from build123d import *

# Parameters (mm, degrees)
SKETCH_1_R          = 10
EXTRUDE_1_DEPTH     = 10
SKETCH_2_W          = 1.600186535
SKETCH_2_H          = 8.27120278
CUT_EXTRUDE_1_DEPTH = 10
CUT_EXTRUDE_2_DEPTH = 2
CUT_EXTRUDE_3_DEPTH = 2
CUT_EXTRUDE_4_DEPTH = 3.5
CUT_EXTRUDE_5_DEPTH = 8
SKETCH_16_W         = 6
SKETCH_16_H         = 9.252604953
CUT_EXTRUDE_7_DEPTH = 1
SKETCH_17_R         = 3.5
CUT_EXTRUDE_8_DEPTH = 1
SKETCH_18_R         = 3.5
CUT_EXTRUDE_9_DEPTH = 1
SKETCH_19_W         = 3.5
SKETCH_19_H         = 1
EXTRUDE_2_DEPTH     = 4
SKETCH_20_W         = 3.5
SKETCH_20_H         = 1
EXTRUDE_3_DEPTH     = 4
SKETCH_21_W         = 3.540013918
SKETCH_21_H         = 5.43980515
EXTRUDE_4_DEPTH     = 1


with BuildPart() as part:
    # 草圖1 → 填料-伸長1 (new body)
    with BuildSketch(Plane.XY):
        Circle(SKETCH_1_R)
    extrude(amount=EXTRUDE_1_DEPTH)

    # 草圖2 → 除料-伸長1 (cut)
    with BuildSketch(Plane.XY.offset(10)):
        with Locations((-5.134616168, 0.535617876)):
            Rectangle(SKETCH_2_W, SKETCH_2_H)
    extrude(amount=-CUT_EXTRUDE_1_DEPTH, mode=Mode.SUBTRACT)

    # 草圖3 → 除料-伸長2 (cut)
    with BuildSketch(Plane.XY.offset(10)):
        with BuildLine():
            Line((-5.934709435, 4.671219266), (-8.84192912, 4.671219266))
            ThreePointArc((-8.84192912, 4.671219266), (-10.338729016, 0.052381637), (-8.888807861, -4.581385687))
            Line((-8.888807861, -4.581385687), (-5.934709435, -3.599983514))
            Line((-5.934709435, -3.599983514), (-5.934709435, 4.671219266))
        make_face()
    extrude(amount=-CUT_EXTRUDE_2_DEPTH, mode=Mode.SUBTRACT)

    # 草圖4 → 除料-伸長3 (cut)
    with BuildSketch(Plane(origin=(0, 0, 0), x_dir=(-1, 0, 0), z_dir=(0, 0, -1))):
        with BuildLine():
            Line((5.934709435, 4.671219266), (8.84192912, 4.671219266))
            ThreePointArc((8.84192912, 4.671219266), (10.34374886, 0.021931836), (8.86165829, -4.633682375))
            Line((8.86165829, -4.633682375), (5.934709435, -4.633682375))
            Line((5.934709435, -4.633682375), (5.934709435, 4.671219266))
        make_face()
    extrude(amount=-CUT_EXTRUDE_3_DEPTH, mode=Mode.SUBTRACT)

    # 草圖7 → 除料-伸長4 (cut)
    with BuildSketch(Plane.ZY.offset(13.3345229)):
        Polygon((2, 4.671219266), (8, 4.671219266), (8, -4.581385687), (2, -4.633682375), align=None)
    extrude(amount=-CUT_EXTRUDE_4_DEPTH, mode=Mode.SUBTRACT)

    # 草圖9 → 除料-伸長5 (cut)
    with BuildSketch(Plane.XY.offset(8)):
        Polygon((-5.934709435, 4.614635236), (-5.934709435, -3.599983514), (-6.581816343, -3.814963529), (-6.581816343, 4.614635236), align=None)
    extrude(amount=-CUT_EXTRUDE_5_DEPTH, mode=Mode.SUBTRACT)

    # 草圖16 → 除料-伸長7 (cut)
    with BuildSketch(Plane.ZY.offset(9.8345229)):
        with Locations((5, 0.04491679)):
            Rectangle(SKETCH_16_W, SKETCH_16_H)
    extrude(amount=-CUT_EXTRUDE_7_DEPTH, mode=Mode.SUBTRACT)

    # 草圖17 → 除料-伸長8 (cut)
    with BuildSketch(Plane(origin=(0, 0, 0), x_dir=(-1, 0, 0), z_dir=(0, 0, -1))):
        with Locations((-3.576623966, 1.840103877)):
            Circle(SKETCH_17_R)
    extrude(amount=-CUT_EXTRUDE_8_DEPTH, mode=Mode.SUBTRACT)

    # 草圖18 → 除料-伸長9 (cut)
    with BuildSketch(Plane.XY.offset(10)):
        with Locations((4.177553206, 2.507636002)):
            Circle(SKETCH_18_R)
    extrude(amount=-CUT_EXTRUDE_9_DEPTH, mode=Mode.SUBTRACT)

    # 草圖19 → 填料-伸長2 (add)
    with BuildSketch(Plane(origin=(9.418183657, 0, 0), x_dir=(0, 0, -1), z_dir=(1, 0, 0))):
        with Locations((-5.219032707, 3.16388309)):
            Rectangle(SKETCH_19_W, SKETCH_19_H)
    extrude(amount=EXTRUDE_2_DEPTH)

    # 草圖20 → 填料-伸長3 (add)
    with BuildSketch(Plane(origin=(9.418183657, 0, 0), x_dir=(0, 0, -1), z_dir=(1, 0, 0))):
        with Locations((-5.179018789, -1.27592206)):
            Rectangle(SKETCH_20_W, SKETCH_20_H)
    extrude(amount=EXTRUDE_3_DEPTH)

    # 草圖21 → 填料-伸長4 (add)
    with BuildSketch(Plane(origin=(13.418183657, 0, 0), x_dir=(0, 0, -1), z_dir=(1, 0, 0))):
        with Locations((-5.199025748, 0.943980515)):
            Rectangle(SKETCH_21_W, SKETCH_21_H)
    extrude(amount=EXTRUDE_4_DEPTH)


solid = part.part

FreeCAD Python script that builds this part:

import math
import FreeCAD as App
import Part
import Sketcher
from FreeCAD import Vector

doc = App.newDocument("Part")
body = doc.addObject("PartDesign::Body", "Body")

# Sketch on XY plane
sketch1 = doc.addObject("Sketcher::SketchObject", "Sketch")
body.addObject(sketch1)
sketch1.AttachmentSupport = (doc.XY_Plane, [""])
sketch1.MapMode = "FlatFace"
sketch1.addGeometry(Part.Circle(Vector(0, 0, 0), Vector(0, 0, 1), 10), False)
sketch1.addConstraint([
    Sketcher.Constraint("Coincident", 0, 3, -1, 1),
    Sketcher.Constraint("Diameter", 0, 20.0),
])
pad1 = doc.addObject("PartDesign::Pad", "Pad")
body.addObject(pad1)
pad1.Profile = sketch1
pad1.Length = 10

# Sketch on XY plane
sketch2 = doc.addObject("Sketcher::SketchObject", "Sketch001")
body.addObject(sketch2)
sketch2.AttachmentSupport = (doc.XY_Plane, [""])
sketch2.MapMode = "FlatFace"
sketch2.AttachmentOffset = App.Placement(Vector(0, 0, 10), App.Rotation())
sketch2.addGeometry([
    Part.LineSegment(Vector(-5.9, 4.7, 0), Vector(-5.9, -3.6, 0)),
    Part.LineSegment(Vector(-5.9, -3.6, 0), Vector(-4.3, -3.6, 0)),
    Part.LineSegment(Vector(-4.3, -3.6, 0), Vector(-4.3, 4.7, 0)),
    Part.LineSegment(Vector(-4.3, 4.7, 0), Vector(-5.9, 4.7, 0)),
], False)
sketch2.addConstraint([
    Sketcher.Constraint("Coincident", 0, 2, 1, 1),
    Sketcher.Constraint("Coincident", 1, 2, 2, 1),
    Sketcher.Constraint("Coincident", 2, 2, 3, 1),
    Sketcher.Constraint("Coincident", 3, 2, 0, 1),
    Sketcher.Constraint("Vertical", 0),
    Sketcher.Constraint("Horizontal", 1),
    Sketcher.Constraint("Vertical", 2),
    Sketcher.Constraint("Horizontal", 3),
    Sketcher.Constraint("DistanceX", 1, 1, 1, 2, 1.600187),
    Sketcher.Constraint("DistanceY", 0, 2, 0, 1, 8.271203),
    Sketcher.Constraint("DistanceX", 0, 2, -1, 1, 5.934709),
    Sketcher.Constraint("DistanceY", -1, 1, 2, 2, 4.671219),
])
pocket1 = doc.addObject("PartDesign::Pocket", "Pocket")
body.addObject(pocket1)
pocket1.Profile = sketch2
pocket1.Length = 10

# Sketch on XY plane
sketch3 = doc.addObject("Sketcher::SketchObject", "Sketch002")
body.addObject(sketch3)
sketch3.AttachmentSupport = (doc.XY_Plane, [""])
sketch3.MapMode = "FlatFace"
sketch3.AttachmentOffset = App.Placement(Vector(0, 0, 10), App.Rotation())
sketch3.addGeometry([
    Part.LineSegment(Vector(-5.9, 4.7, 0), Vector(-8.8, 4.7, 0)),
    Part.ArcOfCircle(Part.Circle(Vector(-2.3, 0, 0), Vector(0, 0, 1), 8), math.radians(144), math.radians(215)),
    Part.LineSegment(Vector(-8.9, -4.6, 0), Vector(-5.9, -3.6, 0)),
    Part.LineSegment(Vector(-5.9, -3.6, 0), Vector(-5.9, 4.7, 0)),
], False)
sketch3.addConstraint([
    Sketcher.Constraint("Coincident", 0, 2, 1, 1),
    Sketcher.Constraint("Coincident", 1, 2, 2, 1),
    Sketcher.Constraint("Coincident", 2, 2, 3, 1),
    Sketcher.Constraint("Coincident", 3, 2, 0, 1),
    Sketcher.Constraint("Horizontal", 0),
    Sketcher.Constraint("Vertical", 3),
    Sketcher.Constraint("Radius", 1, 8.0),
    Sketcher.Constraint("DistanceX", 0, 2, 0, 1, 2.90722),
    Sketcher.Constraint("DistanceX", 1, 2, 2, 2, 2.954098),
    Sketcher.Constraint("DistanceY", 3, 1, 3, 2, 8.271203),
    Sketcher.Constraint("DistanceX", 1, 3, -1, 1, 2.338832),
    Sketcher.Constraint("DistanceY", -1, 1, 1, 3, 0.01185),
    Sketcher.Constraint("DistanceX", 0, 2, -1, 1, 8.841929),
])
pocket2 = doc.addObject("PartDesign::Pocket", "Pocket001")
body.addObject(pocket2)
pocket2.Profile = sketch3
pocket2.Length = 2

# Sketch on XY plane
sketch4 = doc.addObject("Sketcher::SketchObject", "Sketch003")
body.addObject(sketch4)
sketch4.AttachmentSupport = (doc.XY_Plane, [""])
sketch4.MapMode = "FlatFace"
sketch4.addGeometry([
    Part.LineSegment(Vector(-8.8, 4.7, 0), Vector(-5.9, 4.7, 0)),
    Part.LineSegment(Vector(-5.9, 4.7, 0), Vector(-5.9, -4.6, 0)),
    Part.LineSegment(Vector(-5.9, -4.6, 0), Vector(-8.9, -4.6, 0)),
    Part.ArcOfCircle(Part.Circle(Vector(-2.3, 0, 0), Vector(0, 0, 1), 8), math.radians(144), math.radians(215)),
], False)
sketch4.addConstraint([
    Sketcher.Constraint("Coincident", 0, 2, 1, 1),
    Sketcher.Constraint("Coincident", 1, 2, 2, 1),
    Sketcher.Constraint("Coincident", 2, 2, 3, 2),
    Sketcher.Constraint("Coincident", 3, 1, 0, 1),
    Sketcher.Constraint("Horizontal", 0),
    Sketcher.Constraint("Vertical", 1),
    Sketcher.Constraint("Horizontal", 2),
    Sketcher.Constraint("Radius", 3, 8.0),
    Sketcher.Constraint("DistanceY", 1, 2, 1, 1, 9.304902),
    Sketcher.Constraint("DistanceX", 0, 1, 0, 2, 2.90722),
    Sketcher.Constraint("DistanceX", 2, 2, 2, 1, 2.926949),
    Sketcher.Constraint("DistanceY", -1, 1, 3, 3, 0.004969),
    Sketcher.Constraint("DistanceX", 0, 2, -1, 1, 5.934709),
])
pocket3 = doc.addObject("PartDesign::Pocket", "Pocket002")
body.addObject(pocket3)
pocket3.Profile = sketch4
pocket3.Length = 2
pocket3.Reversed = True

# Sketch on YZ plane
sketch5 = doc.addObject("Sketcher::SketchObject", "Sketch004")
body.addObject(sketch5)
sketch5.AttachmentSupport = (doc.YZ_Plane, [""])
sketch5.MapMode = "FlatFace"
sketch5.AttachmentOffset = App.Placement(Vector(0, 0, -13.334523), App.Rotation())
sketch5.addGeometry([
    Part.LineSegment(Vector(5, 8, 0), Vector(5, 2, 0)),
    Part.LineSegment(Vector(5, 2, 0), Vector(-5, 2, 0)),
    Part.LineSegment(Vector(-5, 2, 0), Vector(-5, 8, 0)),
    Part.LineSegment(Vector(-5, 8, 0), Vector(5, 8, 0)),
], False)
sketch5.addConstraint([
    Sketcher.Constraint("Coincident", 0, 2, 1, 1),
    Sketcher.Constraint("Coincident", 1, 2, 2, 1),
    Sketcher.Constraint("Coincident", 2, 2, 3, 1),
    Sketcher.Constraint("Coincident", 3, 2, 0, 1),
    Sketcher.Constraint("Vertical", 0),
    Sketcher.Constraint("Horizontal", 1),
    Sketcher.Constraint("Horizontal", 3),
    Sketcher.Constraint("DistanceY", 0, 2, 0, 1, 6.0),
    Sketcher.Constraint("DistanceY", -1, 1, 0, 2, 2.0),
    Sketcher.Constraint("DistanceX", 1, 2, 1, 1, 9.304902),
    Sketcher.Constraint("DistanceX", 3, 1, 3, 2, 9.252605),
    Sketcher.Constraint("DistanceX", -1, 1, 0, 2, 4.671219),
])
pocket4 = doc.addObject("PartDesign::Pocket", "Pocket003")
body.addObject(pocket4)
pocket4.Profile = sketch5
pocket4.Length = 3.5
pocket4.Reversed = True

# Sketch on XY plane
sketch6 = doc.addObject("Sketcher::SketchObject", "Sketch005")
body.addObject(sketch6)
sketch6.AttachmentSupport = (doc.XY_Plane, [""])
sketch6.MapMode = "FlatFace"
sketch6.AttachmentOffset = App.Placement(Vector(0, 0, 8), App.Rotation())
sketch6.addGeometry([
    Part.LineSegment(Vector(-5.9, -3.6, 0), Vector(-5.9, 4.6, 0)),
    Part.LineSegment(Vector(-5.9, 4.6, 0), Vector(-6.6, 4.6, 0)),
    Part.LineSegment(Vector(-6.6, 4.6, 0), Vector(-6.6, -3.8, 0)),
    Part.LineSegment(Vector(-6.6, -3.8, 0), Vector(-5.9, -3.6, 0)),
], False)
sketch6.addConstraint([
    Sketcher.Constraint("Coincident", 0, 2, 1, 1),
    Sketcher.Constraint("Coincident", 1, 2, 2, 1),
    Sketcher.Constraint("Coincident", 2, 2, 3, 1),
    Sketcher.Constraint("Coincident", 3, 2, 0, 1),
    Sketcher.Constraint("Vertical", 0),
    Sketcher.Constraint("Horizontal", 1),
    Sketcher.Constraint("Vertical", 2),
    Sketcher.Constraint("DistanceY", 2, 2, 2, 1, 8.429599),
    Sketcher.Constraint("DistanceY", 0, 1, 0, 2, 8.214619),
    Sketcher.Constraint("DistanceX", 1, 2, 1, 1, 0.647107),
    Sketcher.Constraint("DistanceX", 0, 2, -1, 1, 5.934709),
    Sketcher.Constraint("DistanceY", -1, 1, 0, 2, 4.614635),
])
pocket5 = doc.addObject("PartDesign::Pocket", "Pocket004")
body.addObject(pocket5)
pocket5.Profile = sketch6
pocket5.Length = 8

# Sketch on YZ plane
sketch7 = doc.addObject("Sketcher::SketchObject", "Sketch006")
body.addObject(sketch7)
sketch7.AttachmentSupport = (doc.YZ_Plane, [""])
sketch7.MapMode = "FlatFace"
sketch7.AttachmentOffset = App.Placement(Vector(0, 0, -9.834523), App.Rotation())
sketch7.addGeometry([
    Part.LineSegment(Vector(5, 2, 0), Vector(-5, 2, 0)),
    Part.LineSegment(Vector(-5, 2, 0), Vector(-5, 8, 0)),
    Part.LineSegment(Vector(-5, 8, 0), Vector(5, 8, 0)),
    Part.LineSegment(Vector(5, 8, 0), Vector(5, 2, 0)),
], False)
sketch7.addConstraint([
    Sketcher.Constraint("Coincident", 0, 2, 1, 1),
    Sketcher.Constraint("Coincident", 1, 2, 2, 1),
    Sketcher.Constraint("Coincident", 2, 2, 3, 1),
    Sketcher.Constraint("Coincident", 3, 2, 0, 1),
    Sketcher.Constraint("Horizontal", 0),
    Sketcher.Constraint("Vertical", 1),
    Sketcher.Constraint("Horizontal", 2),
    Sketcher.Constraint("Vertical", 3),
    Sketcher.Constraint("DistanceY", 1, 1, 1, 2, 6.0),
    Sketcher.Constraint("DistanceY", -1, 1, 0, 2, 2.0),
    Sketcher.Constraint("DistanceX", 0, 2, 0, 1, 9.252605),
    Sketcher.Constraint("DistanceX", -1, 1, 2, 2, 4.671219),
])
pocket6 = doc.addObject("PartDesign::Pocket", "Pocket005")
body.addObject(pocket6)
pocket6.Profile = sketch7
pocket6.Length = 1
pocket6.Reversed = True

# Sketch on XY plane
sketch8 = doc.addObject("Sketcher::SketchObject", "Sketch007")
body.addObject(sketch8)
sketch8.AttachmentSupport = (doc.XY_Plane, [""])
sketch8.MapMode = "FlatFace"
sketch8.addGeometry(Part.Circle(Vector(3.6, 1.8, 0), Vector(0, 0, 1), 3.5), False)
sketch8.addConstraint([
    Sketcher.Constraint("Diameter", 0, 7.0),
    Sketcher.Constraint("DistanceX", -1, 1, 0, 3, 3.576624),
    Sketcher.Constraint("DistanceY", -1, 1, 0, 3, 1.840104),
])
pocket7 = doc.addObject("PartDesign::Pocket", "Pocket006")
body.addObject(pocket7)
pocket7.Profile = sketch8
pocket7.Length = 1
pocket7.Reversed = True

# Sketch on XY plane
sketch9 = doc.addObject("Sketcher::SketchObject", "Sketch008")
body.addObject(sketch9)
sketch9.AttachmentSupport = (doc.XY_Plane, [""])
sketch9.MapMode = "FlatFace"
sketch9.AttachmentOffset = App.Placement(Vector(0, 0, 10), App.Rotation())
sketch9.addGeometry(Part.Circle(Vector(4.2, 2.5, 0), Vector(0, 0, 1), 3.5), False)
sketch9.addConstraint([
    Sketcher.Constraint("Diameter", 0, 7.0),
    Sketcher.Constraint("DistanceX", -1, 1, 0, 3, 4.177553),
    Sketcher.Constraint("DistanceY", -1, 1, 0, 3, 2.507636),
])
pocket8 = doc.addObject("PartDesign::Pocket", "Pocket007")
body.addObject(pocket8)
pocket8.Profile = sketch9
pocket8.Length = 1

# Sketch on YZ plane
sketch10 = doc.addObject("Sketcher::SketchObject", "Sketch009")
body.addObject(sketch10)
sketch10.AttachmentSupport = (doc.YZ_Plane, [""])
sketch10.MapMode = "FlatFace"
sketch10.AttachmentOffset = App.Placement(Vector(0, 0, 9.418184), App.Rotation())
sketch10.addGeometry([
    Part.LineSegment(Vector(3.7, 7, 0), Vector(2.7, 7, 0)),
    Part.LineSegment(Vector(2.7, 7, 0), Vector(2.7, 3.5, 0)),
    Part.LineSegment(Vector(2.7, 3.5, 0), Vector(3.7, 3.5, 0)),
    Part.LineSegment(Vector(3.7, 3.5, 0), Vector(3.7, 7, 0)),
], False)
sketch10.addConstraint([
    Sketcher.Constraint("Coincident", 0, 2, 1, 1),
    Sketcher.Constraint("Coincident", 1, 2, 2, 1),
    Sketcher.Constraint("Coincident", 2, 2, 3, 1),
    Sketcher.Constraint("Coincident", 3, 2, 0, 1),
    Sketcher.Constraint("Horizontal", 0),
    Sketcher.Constraint("Vertical", 1),
    Sketcher.Constraint("Horizontal", 2),
    Sketcher.Constraint("Vertical", 3),
    Sketcher.Constraint("DistanceX", 0, 2, 0, 1, 1.0),
    Sketcher.Constraint("DistanceY", 1, 2, 1, 1, 3.5),
    Sketcher.Constraint("DistanceX", -1, 1, 0, 2, 2.663883),
    Sketcher.Constraint("DistanceY", -1, 1, 0, 2, 6.969033),
])
pad2 = doc.addObject("PartDesign::Pad", "Pad001")
body.addObject(pad2)
pad2.Profile = sketch10
pad2.Length = 4

# Sketch on YZ plane
sketch11 = doc.addObject("Sketcher::SketchObject", "Sketch010")
body.addObject(sketch11)
sketch11.AttachmentSupport = (doc.YZ_Plane, [""])
sketch11.MapMode = "FlatFace"
sketch11.AttachmentOffset = App.Placement(Vector(0, 0, 9.418184), App.Rotation())
sketch11.addGeometry([
    Part.LineSegment(Vector(-0.8, 6.9, 0), Vector(-1.8, 6.9, 0)),
    Part.LineSegment(Vector(-1.8, 6.9, 0), Vector(-1.8, 3.4, 0)),
    Part.LineSegment(Vector(-1.8, 3.4, 0), Vector(-0.8, 3.4, 0)),
    Part.LineSegment(Vector(-0.8, 3.4, 0), Vector(-0.8, 6.9, 0)),
], False)
sketch11.addConstraint([
    Sketcher.Constraint("Coincident", 0, 2, 1, 1),
    Sketcher.Constraint("Coincident", 1, 2, 2, 1),
    Sketcher.Constraint("Coincident", 2, 2, 3, 1),
    Sketcher.Constraint("Coincident", 3, 2, 0, 1),
    Sketcher.Constraint("Horizontal", 0),
    Sketcher.Constraint("Vertical", 1),
    Sketcher.Constraint("Horizontal", 2),
    Sketcher.Constraint("Vertical", 3),
    Sketcher.Constraint("DistanceX", 0, 2, 0, 1, 1.0),
    Sketcher.Constraint("DistanceY", 1, 2, 1, 1, 3.5),
    Sketcher.Constraint("DistanceY", -1, 1, 0, 2, 6.929019),
    Sketcher.Constraint("DistanceX", 0, 2, -1, 1, 1.775922),
])
pad3 = doc.addObject("PartDesign::Pad", "Pad002")
body.addObject(pad3)
pad3.Profile = sketch11
pad3.Length = 4

# Sketch on YZ plane
sketch12 = doc.addObject("Sketcher::SketchObject", "Sketch011")
body.addObject(sketch12)
sketch12.AttachmentSupport = (doc.YZ_Plane, [""])
sketch12.MapMode = "FlatFace"
sketch12.AttachmentOffset = App.Placement(Vector(0, 0, 13.418184), App.Rotation())
sketch12.addGeometry([
    Part.LineSegment(Vector(3.7, 7, 0), Vector(-1.8, 7, 0)),
    Part.LineSegment(Vector(-1.8, 7, 0), Vector(-1.8, 3.4, 0)),
    Part.LineSegment(Vector(-1.8, 3.4, 0), Vector(3.7, 3.4, 0)),
    Part.LineSegment(Vector(3.7, 3.4, 0), Vector(3.7, 7, 0)),
], False)
sketch12.addConstraint([
    Sketcher.Constraint("Coincident", 0, 2, 1, 1),
    Sketcher.Constraint("Coincident", 1, 2, 2, 1),
    Sketcher.Constraint("Coincident", 2, 2, 3, 1),
    Sketcher.Constraint("Coincident", 3, 2, 0, 1),
    Sketcher.Constraint("Horizontal", 0),
    Sketcher.Constraint("Vertical", 1),
    Sketcher.Constraint("Horizontal", 2),
    Sketcher.Constraint("Vertical", 3),
    Sketcher.Constraint("DistanceX", 0, 2, 0, 1, 5.439805),
    Sketcher.Constraint("DistanceY", 1, 2, 1, 1, 3.540014),
    Sketcher.Constraint("DistanceY", -1, 1, 1, 2, 3.429019),
    Sketcher.Constraint("DistanceX", 0, 2, -1, 1, 1.775922),
])
pad4 = doc.addObject("PartDesign::Pad", "Pad003")
body.addObject(pad4)
pad4.Profile = sketch12
pad4.Length = 1

doc.recompute()
